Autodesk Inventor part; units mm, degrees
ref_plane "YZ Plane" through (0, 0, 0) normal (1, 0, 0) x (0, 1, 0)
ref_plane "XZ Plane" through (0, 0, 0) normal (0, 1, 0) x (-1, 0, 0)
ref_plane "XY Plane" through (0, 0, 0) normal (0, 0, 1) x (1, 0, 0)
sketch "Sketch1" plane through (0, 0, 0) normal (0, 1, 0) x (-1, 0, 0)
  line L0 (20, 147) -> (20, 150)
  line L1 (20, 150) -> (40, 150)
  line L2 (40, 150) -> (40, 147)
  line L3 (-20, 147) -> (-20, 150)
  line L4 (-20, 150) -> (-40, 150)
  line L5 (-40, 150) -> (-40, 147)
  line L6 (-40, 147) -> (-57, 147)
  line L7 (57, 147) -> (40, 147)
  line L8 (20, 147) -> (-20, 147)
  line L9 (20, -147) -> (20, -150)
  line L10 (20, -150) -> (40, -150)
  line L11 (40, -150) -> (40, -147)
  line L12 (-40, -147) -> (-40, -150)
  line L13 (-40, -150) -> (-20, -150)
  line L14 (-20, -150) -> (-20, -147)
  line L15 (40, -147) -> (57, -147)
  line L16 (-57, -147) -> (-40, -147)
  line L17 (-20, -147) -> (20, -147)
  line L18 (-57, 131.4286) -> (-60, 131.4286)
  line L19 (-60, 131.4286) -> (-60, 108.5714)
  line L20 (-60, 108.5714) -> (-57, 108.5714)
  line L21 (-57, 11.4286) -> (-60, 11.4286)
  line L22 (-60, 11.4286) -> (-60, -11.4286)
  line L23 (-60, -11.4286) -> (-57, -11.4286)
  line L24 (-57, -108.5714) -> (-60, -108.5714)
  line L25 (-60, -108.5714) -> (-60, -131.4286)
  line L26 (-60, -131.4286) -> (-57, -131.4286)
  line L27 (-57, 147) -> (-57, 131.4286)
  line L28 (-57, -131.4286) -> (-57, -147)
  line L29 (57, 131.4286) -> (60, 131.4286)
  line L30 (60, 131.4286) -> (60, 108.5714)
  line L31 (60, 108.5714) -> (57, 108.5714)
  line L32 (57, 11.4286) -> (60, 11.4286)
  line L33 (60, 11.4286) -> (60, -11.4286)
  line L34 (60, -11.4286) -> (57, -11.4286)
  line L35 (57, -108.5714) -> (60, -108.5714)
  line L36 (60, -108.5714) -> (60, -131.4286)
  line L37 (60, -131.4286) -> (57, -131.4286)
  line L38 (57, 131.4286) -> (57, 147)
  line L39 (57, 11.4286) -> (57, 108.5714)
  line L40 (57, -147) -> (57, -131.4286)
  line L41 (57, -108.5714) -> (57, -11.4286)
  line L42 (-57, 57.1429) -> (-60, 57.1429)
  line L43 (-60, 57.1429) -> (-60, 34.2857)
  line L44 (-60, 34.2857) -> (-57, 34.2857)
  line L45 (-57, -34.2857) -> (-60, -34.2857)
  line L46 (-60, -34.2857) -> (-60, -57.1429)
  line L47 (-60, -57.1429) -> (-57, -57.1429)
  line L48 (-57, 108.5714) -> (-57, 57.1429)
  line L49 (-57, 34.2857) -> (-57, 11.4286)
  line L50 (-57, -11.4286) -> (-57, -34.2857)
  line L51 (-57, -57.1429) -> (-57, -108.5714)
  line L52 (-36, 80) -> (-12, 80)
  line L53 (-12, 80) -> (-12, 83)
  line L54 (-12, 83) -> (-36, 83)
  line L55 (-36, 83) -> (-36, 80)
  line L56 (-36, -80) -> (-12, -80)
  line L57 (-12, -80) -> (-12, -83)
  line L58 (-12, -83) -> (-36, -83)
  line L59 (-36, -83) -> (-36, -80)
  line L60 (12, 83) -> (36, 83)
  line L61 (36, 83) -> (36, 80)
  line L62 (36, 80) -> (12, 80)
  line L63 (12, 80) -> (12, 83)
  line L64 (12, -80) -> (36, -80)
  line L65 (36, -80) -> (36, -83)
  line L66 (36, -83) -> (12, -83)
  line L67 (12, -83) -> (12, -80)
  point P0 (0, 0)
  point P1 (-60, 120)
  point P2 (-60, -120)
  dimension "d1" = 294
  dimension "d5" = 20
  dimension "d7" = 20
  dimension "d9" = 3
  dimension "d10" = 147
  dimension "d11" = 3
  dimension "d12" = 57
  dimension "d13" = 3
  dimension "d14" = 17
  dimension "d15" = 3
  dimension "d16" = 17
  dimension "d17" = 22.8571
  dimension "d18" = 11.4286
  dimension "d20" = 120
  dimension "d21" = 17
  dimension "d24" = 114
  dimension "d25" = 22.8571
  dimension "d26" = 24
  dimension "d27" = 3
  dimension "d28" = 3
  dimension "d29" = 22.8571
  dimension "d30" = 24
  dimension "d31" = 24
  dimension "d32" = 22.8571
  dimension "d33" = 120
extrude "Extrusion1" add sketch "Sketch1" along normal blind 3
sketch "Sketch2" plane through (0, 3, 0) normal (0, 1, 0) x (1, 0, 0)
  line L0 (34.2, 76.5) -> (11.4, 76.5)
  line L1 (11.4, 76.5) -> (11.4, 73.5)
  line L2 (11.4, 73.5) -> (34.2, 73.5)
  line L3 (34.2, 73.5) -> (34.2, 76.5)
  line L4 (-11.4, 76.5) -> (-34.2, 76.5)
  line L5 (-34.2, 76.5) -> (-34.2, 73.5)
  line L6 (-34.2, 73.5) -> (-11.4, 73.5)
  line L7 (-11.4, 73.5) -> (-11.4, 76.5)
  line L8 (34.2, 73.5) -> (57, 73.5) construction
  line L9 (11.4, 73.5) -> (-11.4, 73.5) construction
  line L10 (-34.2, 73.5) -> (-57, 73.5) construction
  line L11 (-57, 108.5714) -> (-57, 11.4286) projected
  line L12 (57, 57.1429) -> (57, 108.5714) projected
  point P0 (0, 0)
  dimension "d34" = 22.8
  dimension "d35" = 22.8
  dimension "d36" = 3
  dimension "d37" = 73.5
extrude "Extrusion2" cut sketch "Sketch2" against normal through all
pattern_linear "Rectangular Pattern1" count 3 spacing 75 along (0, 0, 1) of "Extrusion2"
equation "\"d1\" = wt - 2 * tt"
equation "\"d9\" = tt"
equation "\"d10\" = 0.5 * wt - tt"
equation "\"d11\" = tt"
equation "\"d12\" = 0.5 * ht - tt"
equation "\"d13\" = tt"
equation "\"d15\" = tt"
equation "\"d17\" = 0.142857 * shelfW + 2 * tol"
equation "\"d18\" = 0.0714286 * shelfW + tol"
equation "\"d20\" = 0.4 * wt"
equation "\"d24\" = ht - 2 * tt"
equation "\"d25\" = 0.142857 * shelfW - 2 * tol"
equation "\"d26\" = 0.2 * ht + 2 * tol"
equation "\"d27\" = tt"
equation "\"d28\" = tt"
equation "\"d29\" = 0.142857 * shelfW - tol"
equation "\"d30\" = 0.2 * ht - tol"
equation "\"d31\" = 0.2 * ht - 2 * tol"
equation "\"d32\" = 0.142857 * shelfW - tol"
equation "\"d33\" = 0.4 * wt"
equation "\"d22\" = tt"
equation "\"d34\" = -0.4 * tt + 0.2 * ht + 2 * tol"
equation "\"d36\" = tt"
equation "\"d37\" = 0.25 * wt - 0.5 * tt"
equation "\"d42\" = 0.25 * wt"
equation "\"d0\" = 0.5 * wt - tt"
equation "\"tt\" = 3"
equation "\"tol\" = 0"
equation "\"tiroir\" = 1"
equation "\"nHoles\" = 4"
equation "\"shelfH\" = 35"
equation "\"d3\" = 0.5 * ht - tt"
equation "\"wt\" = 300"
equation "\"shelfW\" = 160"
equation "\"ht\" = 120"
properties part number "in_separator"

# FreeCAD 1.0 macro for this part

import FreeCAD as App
import Part
import Sketcher
from FreeCAD import Vector
Q = App.Units.Quantity


def add_polygon(sketch, points):
    """Adds a closed chain of lines whose ends are joined by coincident constraints."""
    first, n = sketch.GeometryCount, len(points)
    for a, b in zip(points, points[1:] + points[:1]):
        sketch.addGeometry(Part.LineSegment(App.Vector(*a, 0), App.Vector(*b, 0)), False)
    for i in range(n):
        sketch.addConstraint(Sketcher.Constraint("Coincident", first + i, 2, first + (i + 1) % n, 1))

doc = App.newDocument("Part")
body = doc.addObject("PartDesign::Body", "Body")

# Sketch on XZ plane
sketch1 = body.newObject("Sketcher::SketchObject", "Sketch")
sketch1.AttachmentSupport = (doc.getObject("XZ_Plane"), [""])
sketch1.MapMode = "FlatFace"
add_polygon(sketch1, [(-20, 150), (-20, 147), (20, 147), (20, 150), (40, 150), (40, 147), (57, 147), (57, 131.4), (60, 131.4), (60, 108.6), (57, 108.6), (57, 57.1), (60, 57.1), (60, 34.3), (57, 34.3), (57, 11.4), (60, 11.4), (60, -11.4), (57, -11.4), (57, -34.3), (60, -34.3), (60, -57.1), (57, -57.1), (57, -108.6), (60, -108.6), (60, -131.4), (57, -131.4), (57, -147), (40, -147), (40, -150), (20, -150), (20, -147), (-20, -147), (-20, -150), (-40, -150), (-40, -147), (-57, -147), (-57, -131.4), (-60, -131.4), (-60, -108.6), (-57, -108.6), (-57, -11.4), (-60, -11.4), (-60, 11.4), (-57, 11.4), (-57, 108.6), (-60, 108.6), (-60, 131.4), (-57, 131.4), (-57, 147), (-40, 147), (-40, 150)])  # lines 0-51
add_polygon(sketch1, [(36, -83), (36, -80), (12, -80), (12, -83)])  # lines 52-55
add_polygon(sketch1, [(-12, -83), (-12, -80), (-36, -80), (-36, -83)])  # lines 56-59
add_polygon(sketch1, [(12, 80), (36, 80), (36, 83), (12, 83)])  # lines 60-63
add_polygon(sketch1, [(-12, 80), (-12, 83), (-36, 83), (-36, 80)])  # lines 64-67
sketch1.addConstraint(Sketcher.Constraint("Vertical", 0))
sketch1.addConstraint(Sketcher.Constraint("Horizontal", 1))
sketch1.addConstraint(Sketcher.Constraint("Vertical", 2))
sketch1.addConstraint(Sketcher.Constraint("Horizontal", 3))
sketch1.addConstraint(Sketcher.Constraint("Vertical", 4))
sketch1.addConstraint(Sketcher.Constraint("Horizontal", 5))
sketch1.addConstraint(Sketcher.Constraint("Vertical", 6))
sketch1.addConstraint(Sketcher.Constraint("Horizontal", 7))
sketch1.addConstraint(Sketcher.Constraint("Vertical", 8))
sketch1.addConstraint(Sketcher.Constraint("Horizontal", 9))
sketch1.addConstraint(Sketcher.Constraint("Vertical", 10))
sketch1.addConstraint(Sketcher.Constraint("Horizontal", 11))
sketch1.addConstraint(Sketcher.Constraint("Vertical", 12))
sketch1.addConstraint(Sketcher.Constraint("Horizontal", 13))
sketch1.addConstraint(Sketcher.Constraint("Vertical", 14))
sketch1.addConstraint(Sketcher.Constraint("Horizontal", 15))
sketch1.addConstraint(Sketcher.Constraint("Vertical", 16))
sketch1.addConstraint(Sketcher.Constraint("Horizontal", 17))
sketch1.addConstraint(Sketcher.Constraint("Vertical", 18))
sketch1.addConstraint(Sketcher.Constraint("Horizontal", 19))
sketch1.addConstraint(Sketcher.Constraint("Vertical", 20))
sketch1.addConstraint(Sketcher.Constraint("Horizontal", 21))
sketch1.addConstraint(Sketcher.Constraint("Vertical", 22))
sketch1.addConstraint(Sketcher.Constraint("Horizontal", 23))
sketch1.addConstraint(Sketcher.Constraint("Vertical", 24))
sketch1.addConstraint(Sketcher.Constraint("Horizontal", 25))
sketch1.addConstraint(Sketcher.Constraint("Vertical", 26))
sketch1.addConstraint(Sketcher.Constraint("Horizontal", 27))
sketch1.addConstraint(Sketcher.Constraint("Vertical", 28))
sketch1.addConstraint(Sketcher.Constraint("Horizontal", 29))
sketch1.addConstraint(Sketcher.Constraint("Vertical", 30))
sketch1.addConstraint(Sketcher.Constraint("Horizontal", 31))
sketch1.addConstraint(Sketcher.Constraint("Vertical", 32))
sketch1.addConstraint(Sketcher.Constraint("Horizontal", 33))
sketch1.addConstraint(Sketcher.Constraint("Vertical", 34))
sketch1.addConstraint(Sketcher.Constraint("Horizontal", 35))
sketch1.addConstraint(Sketcher.Constraint("Vertical", 36))
sketch1.addConstraint(Sketcher.Constraint("Horizontal", 37))
sketch1.addConstraint(Sketcher.Constraint("Vertical", 38))
sketch1.addConstraint(Sketcher.Constraint("Horizontal", 39))
sketch1.addConstraint(Sketcher.Constraint("Vertical", 40))
sketch1.addConstraint(Sketcher.Constraint("Horizontal", 41))
sketch1.addConstraint(Sketcher.Constraint("Vertical", 42))
sketch1.addConstraint(Sketcher.Constraint("Horizontal", 43))
sketch1.addConstraint(Sketcher.Constraint("Vertical", 44))
sketch1.addConstraint(Sketcher.Constraint("Horizontal", 45))
sketch1.addConstraint(Sketcher.Constraint("Vertical", 46))
sketch1.addConstraint(Sketcher.Constraint("Horizontal", 47))
sketch1.addConstraint(Sketcher.Constraint("Vertical", 48))
sketch1.addConstraint(Sketcher.Constraint("Horizontal", 49))
sketch1.addConstraint(Sketcher.Constraint("Vertical", 50))
sketch1.addConstraint(Sketcher.Constraint("Horizontal", 51))
sketch1.addConstraint(Sketcher.Constraint("Vertical", 52))
sketch1.addConstraint(Sketcher.Constraint("Horizontal", 53))
sketch1.addConstraint(Sketcher.Constraint("Vertical", 54))
sketch1.addConstraint(Sketcher.Constraint("Horizontal", 55))
sketch1.addConstraint(Sketcher.Constraint("Vertical", 56))
sketch1.addConstraint(Sketcher.Constraint("Horizontal", 57))
sketch1.addConstraint(Sketcher.Constraint("Vertical", 58))
sketch1.addConstraint(Sketcher.Constraint("Horizontal", 59))
sketch1.addConstraint(Sketcher.Constraint("Horizontal", 60))
sketch1.addConstraint(Sketcher.Constraint("Vertical", 61))
sketch1.addConstraint(Sketcher.Constraint("Horizontal", 62))
sketch1.addConstraint(Sketcher.Constraint("Vertical", 63))
sketch1.addConstraint(Sketcher.Constraint("Vertical", 64))
sketch1.addConstraint(Sketcher.Constraint("Horizontal", 65))
sketch1.addConstraint(Sketcher.Constraint("Vertical", 66))
sketch1.addConstraint(Sketcher.Constraint("Horizontal", 67))
sketch1.addConstraint(Sketcher.Constraint("Symmetric", 0, 2, 30, 2, -1, 1))
sketch1.addConstraint(Sketcher.Constraint("Symmetric", 2, 2, 32, 2, -1, 1))
sketch1.addConstraint(Sketcher.Constraint("Symmetric", 4, 2, 34, 2, -1, 1))
sketch1.addConstraint(Sketcher.Constraint("Symmetric", 6, 2, 36, 2, -1, 1))
sketch1.addConstraint(Sketcher.Constraint("Symmetric", 8, 2, 38, 2, -1, 1))
sketch1.addConstraint(Sketcher.Constraint("Symmetric", 14, 2, 40, 2, -1, 1))
sketch1.addConstraint(Sketcher.Constraint("Symmetric", 16, 2, 42, 2, -1, 1))
sketch1.addConstraint(Sketcher.Constraint("Symmetric", 22, 2, 44, 2, -1, 1))
sketch1.addConstraint(Sketcher.Constraint("Symmetric", 24, 2, 46, 2, -1, 1))
sketch1.addConstraint(Sketcher.Constraint("Symmetric", 26, 2, 48, 2, -1, 1))
sketch1.addConstraint(Sketcher.Constraint("Symmetric", 28, 2, 50, 2, -1, 1))
sketch1.addConstraint(Sketcher.Constraint("Symmetric", 57, 2, 60, 2, -1, 1))
sketch1.addConstraint(Sketcher.Constraint("Symmetric", 59, 2, 62, 2, -1, 1))
sketch1.addConstraint(Sketcher.Constraint("Symmetric", 54, 2, 64, 2, -1, 1))
sketch1.addConstraint(Sketcher.Constraint("Symmetric", 52, 2, 66, 2, -1, 1))
sketch1.addConstraint(Sketcher.Constraint("Symmetric", 29, 2, 32, 2, -2))
sketch1.addConstraint(Sketcher.Constraint("Symmetric", 27, 2, 34, 2, -2))
sketch1.addConstraint(Sketcher.Constraint("Symmetric", 25, 2, 36, 2, -2))
sketch1.addConstraint(Sketcher.Constraint("Symmetric", 23, 2, 38, 2, -2))
sketch1.addConstraint(Sketcher.Constraint("Symmetric", 17, 2, 40, 2, -2))
sketch1.addConstraint(Sketcher.Constraint("Symmetric", 53, 2, 56, 2, -2))
sketch1.addConstraint(Sketcher.Constraint("Symmetric", 55, 2, 58, 2, -2))
sketch1.addConstraint(Sketcher.Constraint("Symmetric", 12, 2, 19, 2, -1))
sketch1.addConstraint(Sketcher.Constraint("Symmetric", 10, 2, 21, 2, -1))
sketch1.addConstraint(Sketcher.Constraint("Horizontal", 1, 2, 4, 2))
sketch1.addConstraint(Sketcher.Constraint("Vertical", 6, 2, 9, 2))
sketch1.addConstraint(Sketcher.Constraint("Vertical", 8, 2, 11, 2))
sketch1.addConstraint(Sketcher.Constraint("Vertical", 10, 2, 13, 2))
sketch1.addConstraint(Sketcher.Constraint("Vertical", 12, 2, 15, 2))
sketch1.addConstraint(Sketcher.Constraint("Equal", 47, 0))
sketch1.addConstraint(Sketcher.Constraint("Equal", 8, 12))
sketch1.addConstraint(Sketcher.Constraint("Equal", 12, 14))
sketch1.addConstraint(Sketcher.Constraint("Equal", 14, 16))
sketch1.addConstraint(Sketcher.Constraint("Equal", 50, 52))
sketch1.addConstraint(Sketcher.Constraint("DistanceX", 3, 1, 3, 2, Q("20 mm")))
sketch1.addConstraint(Sketcher.Constraint("DistanceX", 5, 1, 5, 2, Q("17 mm")))
sketch1.addConstraint(Sketcher.Constraint("DistanceX", 7, 1, 7, 2, Q("3 mm")))
sketch1.addConstraint(Sketcher.Constraint("DistanceX", 53, 2, 53, 1, Q("24 mm")))
sketch1.addConstraint(Sketcher.Constraint("DistanceX", 0, 2, -1, 1, Q("20 mm")))
sketch1.addConstraint(Sketcher.Constraint("DistanceY", -1, 1, 0, 2, Q("147 mm")))
sketch1.addConstraint(Sketcher.Constraint("DistanceY", 14, 2, 14, 1, Q("22.857 mm")))
sketch1.addConstraint(Sketcher.Constraint("DistanceX", -1, 1, 52, 2, Q("36 mm")))
sketch1.addConstraint(Sketcher.Constraint("DistanceY", 52, 2, -1, 1, Q("80 mm")))
sketch1.addConstraint(Sketcher.Constraint("DistanceY", 6, 2, 6, 1, Q("15.5714 mm")))
pad1 = body.newObject("PartDesign::Pad", "Pad")
pad1.Profile = sketch1
pad1.Length = 3
pad1.Reversed = True

# Sketch on XZ plane
sketch2 = body.newObject("Sketcher::SketchObject", "Sketch001")
sketch2.AttachmentSupport = (doc.getObject("XZ_Plane"), [""])
sketch2.MapMode = "FlatFace"
sketch2.AttachmentOffset = App.Placement(Vector(0, 0, -3), App.Rotation())
add_polygon(sketch2, [(34.2, -73.5), (34.2, -76.5), (11.4, -76.5), (11.4, -73.5)])  # lines 0-3
add_polygon(sketch2, [(-11.4, -73.5), (-11.4, -76.5), (-34.2, -76.5), (-34.2, -73.5)])  # lines 4-7
sketch2.addConstraint(Sketcher.Constraint("Vertical", 0))
sketch2.addConstraint(Sketcher.Constraint("Horizontal", 1))
sketch2.addConstraint(Sketcher.Constraint("Vertical", 2))
sketch2.addConstraint(Sketcher.Constraint("Horizontal", 3))
sketch2.addConstraint(Sketcher.Constraint("Vertical", 4))
sketch2.addConstraint(Sketcher.Constraint("Horizontal", 5))
sketch2.addConstraint(Sketcher.Constraint("Vertical", 6))
sketch2.addConstraint(Sketcher.Constraint("Horizontal", 7))
sketch2.addConstraint(Sketcher.Constraint("Symmetric", 1, 2, 4, 2, -2))
sketch2.addConstraint(Sketcher.Constraint("Symmetric", 3, 2, 6, 2, -2))
sketch2.addConstraint(Sketcher.Constraint("DistanceY", 0, 2, 0, 1, Q("3 mm")))
sketch2.addConstraint(Sketcher.Constraint("DistanceX", 1, 2, 1, 1, Q("22.8 mm")))
sketch2.addConstraint(Sketcher.Constraint("DistanceY", 2, 2, -1, 1, Q("73.5 mm")))
sketch2.addConstraint(Sketcher.Constraint("DistanceX", 4, 2, 1, 2, Q("22.8 mm")))
pocket1 = body.newObject("PartDesign::Pocket", "Pocket")
pocket1.Profile = sketch2
pocket1.Type = "ThroughAll"
pocket1.Reversed = True
doc.recompute()

linearpattern = body.newObject("PartDesign::LinearPattern", "LinearPattern")
linearpattern.Originals = [pocket1]
linearpattern.Direction = (doc.getObject("Z_Axis"), [""])
linearpattern.Mode = "offset"
linearpattern.Offset = 75
linearpattern.Occurrences = 3
body.Tip = linearpattern

doc.recompute()
